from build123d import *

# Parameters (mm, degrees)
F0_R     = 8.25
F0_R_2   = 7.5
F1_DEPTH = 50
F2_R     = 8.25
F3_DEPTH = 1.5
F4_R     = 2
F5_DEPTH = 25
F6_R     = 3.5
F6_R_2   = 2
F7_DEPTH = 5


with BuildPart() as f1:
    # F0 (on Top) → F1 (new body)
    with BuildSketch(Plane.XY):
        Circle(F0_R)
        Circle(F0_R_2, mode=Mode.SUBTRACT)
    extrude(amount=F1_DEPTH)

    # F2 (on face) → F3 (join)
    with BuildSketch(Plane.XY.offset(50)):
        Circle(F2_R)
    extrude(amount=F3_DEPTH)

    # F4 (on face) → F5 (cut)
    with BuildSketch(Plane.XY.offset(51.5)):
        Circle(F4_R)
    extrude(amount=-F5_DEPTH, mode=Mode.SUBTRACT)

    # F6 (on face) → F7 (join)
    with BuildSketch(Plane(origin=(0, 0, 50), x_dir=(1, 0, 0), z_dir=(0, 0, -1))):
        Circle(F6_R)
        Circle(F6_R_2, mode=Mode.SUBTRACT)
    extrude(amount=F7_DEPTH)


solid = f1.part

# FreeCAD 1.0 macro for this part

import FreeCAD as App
import Part
import Sketcher

doc = App.newDocument("Part")
params = doc.addObject("Spreadsheet::Sheet", "Params")
for row, (alias, value) in enumerate([
    ("sketch1_diameter", "15 mm"),
    ("sketch1_diameter2", "16.5 mm"),
    ("pad1_length", "50 mm"),
    ("sketch2_diameter", "16.5 mm"),
    ("pad2_length", "1.5 mm"),
    ("sketch3_diameter", "4 mm"),
    ("pocket1_length", "25 mm"),
    ("sketch4_diameter", "7 mm"),
    ("sketch4_diameter2", "4 mm"),
    ("pad3_length", "5 mm"),
], start=1):
    params.set(f"A{row}", alias)
    params.set(f"B{row}", "=" + value)
    params.setAlias(f"B{row}", alias)

body = doc.addObject("PartDesign::Body", "Body")

# Sketch on XY plane
sketch1 = doc.addObject("Sketcher::SketchObject", "Sketch")
body.addObject(sketch1)
sketch1.AttachmentSupport = (doc.XY_Plane, [""])
sketch1.MapMode = "FlatFace"
sketch1.addGeometry([
    Part.Circle(App.Vector(0, 0, 0), App.Vector(0, 0, 1), 8),
    Part.Circle(App.Vector(0, 0, 0), App.Vector(0, 0, 1), 8),
], False)
sketch1.addConstraint([
    Sketcher.Constraint("Coincident", 0, 3, -1, 1),
    Sketcher.Constraint("Coincident", 1, 3, -1, 1),
    Sketcher.Constraint("Diameter", 1, 15.0),
    Sketcher.Constraint("Diameter", 0, 16.5),
])
sketch1.setExpression("Constraints[2]", "Params.sketch1_diameter")
sketch1.setExpression("Constraints[3]", "Params.sketch1_diameter2")
pad1 = doc.addObject("PartDesign::Pad", "Pad")
body.addObject(pad1)
pad1.Profile = sketch1
pad1.setExpression("Length", "Params.pad1_length")

# Sketch on XY plane
sketch2 = doc.addObject("Sketcher::SketchObject", "Sketch001")
body.addObject(sketch2)
sketch2.AttachmentSupport = (doc.XY_Plane, [""])
sketch2.MapMode = "FlatFace"
sketch2.AttachmentOffset = App.Placement(App.Vector(0, 0, 50), App.Rotation())
sketch2.addGeometry(Part.Circle(App.Vector(0, 0, 0), App.Vector(0, 0, 1), 8), False)
sketch2.addConstraint([
    Sketcher.Constraint("Coincident", 0, 3, -1, 1),
    Sketcher.Constraint("Diameter", 0, 16.5),
])
sketch2.setExpression("Constraints[1]", "Params.sketch2_diameter")
pad2 = doc.addObject("PartDesign::Pad", "Pad001")
body.addObject(pad2)
pad2.Profile = sketch2
pad2.setExpression("Length", "Params.pad2_length")

# Sketch on XY plane
sketch3 = doc.addObject("Sketcher::SketchObject", "Sketch002")
body.addObject(sketch3)
sketch3.AttachmentSupport = (doc.XY_Plane, [""])
sketch3.MapMode = "FlatFace"
sketch3.AttachmentOffset = App.Placement(App.Vector(0, 0, 51.5), App.Rotation())
sketch3.addGeometry(Part.Circle(App.Vector(0, 0, 0), App.Vector(0, 0, 1), 2), False)
sketch3.addConstraint([
    Sketcher.Constraint("Coincident", 0, 3, -1, 1),
    Sketcher.Constraint("Diameter", 0, 4.0),
])
sketch3.setExpression("Constraints[1]", "Params.sketch3_diameter")
pocket1 = doc.addObject("PartDesign::Pocket", "Pocket")
body.addObject(pocket1)
pocket1.Profile = sketch3
pocket1.setExpression("Length", "Params.pocket1_length")

# Sketch on XY plane
sketch4 = doc.addObject("Sketcher::SketchObject", "Sketch003")
body.addObject(sketch4)
sketch4.AttachmentSupport = (doc.XY_Plane, [""])
sketch4.MapMode = "FlatFace"
sketch4.AttachmentOffset = App.Placement(App.Vector(0, 0, 50), App.Rotation())
sketch4.addGeometry([
    Part.Circle(App.Vector(0, 0, 0), App.Vector(0, 0, 1), 3.5),
    Part.Circle(App.Vector(0, 0, 0), App.Vector(0, 0, 1), 2),
], False)
sketch4.addConstraint([
    Sketcher.Constraint("Coincident", 0, 3, -1, 1),
    Sketcher.Constraint("Coincident", 1, 3, -1, 1),
    Sketcher.Constraint("Diameter", 0, 7.0),
    Sketcher.Constraint("Diameter", 1, 4.0),
])
sketch4.setExpression("Constraints[2]", "Params.sketch4_diameter")
sketch4.setExpression("Constraints[3]", "Params.sketch4_diameter2")
pad3 = doc.addObject("PartDesign::Pad", "Pad002")
body.addObject(pad3)
pad3.Profile = sketch4
pad3.setExpression("Length", "Params.pad3_length")
pad3.Reversed = True

doc.recompute()
